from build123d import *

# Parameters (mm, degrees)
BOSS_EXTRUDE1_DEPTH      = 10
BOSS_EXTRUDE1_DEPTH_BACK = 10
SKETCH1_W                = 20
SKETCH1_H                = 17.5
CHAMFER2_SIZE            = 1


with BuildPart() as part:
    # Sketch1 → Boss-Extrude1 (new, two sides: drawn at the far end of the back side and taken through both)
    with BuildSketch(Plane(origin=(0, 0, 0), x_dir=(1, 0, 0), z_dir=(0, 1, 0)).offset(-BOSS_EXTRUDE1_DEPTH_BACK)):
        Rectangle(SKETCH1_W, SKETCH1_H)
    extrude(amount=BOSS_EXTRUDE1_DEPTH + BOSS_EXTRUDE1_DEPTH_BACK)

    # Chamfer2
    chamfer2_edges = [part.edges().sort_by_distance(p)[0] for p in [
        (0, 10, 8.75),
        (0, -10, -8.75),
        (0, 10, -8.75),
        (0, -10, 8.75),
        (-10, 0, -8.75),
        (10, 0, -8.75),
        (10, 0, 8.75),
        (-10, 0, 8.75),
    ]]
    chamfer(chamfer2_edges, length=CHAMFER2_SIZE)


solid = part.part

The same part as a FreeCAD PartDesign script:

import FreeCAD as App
import Part
import Sketcher


def edges_at(feature, points):
    """Names of the edges that pass closest to the given points."""
    edges = feature.Shape.Edges
    near = lambda p: min(range(len(edges)), key=lambda i: edges[i].distToShape(Part.Vertex(*p))[0])
    return sorted({f"Edge{near(p) + 1}" for p in points})

doc = App.newDocument("Part")
body = doc.addObject("PartDesign::Body", "Body")

# Sketch on XZ plane
sketch1 = body.newObject("Sketcher::SketchObject", "Sketch")
sketch1.AttachmentSupport = (doc.getObject("XZ_Plane"), [""])
sketch1.MapMode = "FlatFace"
sketch1.addGeometry(Part.LineSegment(App.Vector(-10, -8.75, 0), App.Vector(-10, 8.75, 0)), False)
sketch1.addGeometry(Part.LineSegment(App.Vector(-10, 8.75, 0), App.Vector(10, 8.75, 0)), False)
sketch1.addGeometry(Part.LineSegment(App.Vector(10, 8.75, 0), App.Vector(10, -8.75, 0)), False)
sketch1.addGeometry(Part.LineSegment(App.Vector(10, -8.75, 0), App.Vector(-10, -8.75, 0)), False)
sketch1.addConstraint(Sketcher.Constraint("Coincident", 0, 2, 1, 1))
sketch1.addConstraint(Sketcher.Constraint("Coincident", 1, 2, 2, 1))
sketch1.addConstraint(Sketcher.Constraint("Coincident", 2, 2, 3, 1))
sketch1.addConstraint(Sketcher.Constraint("Coincident", 3, 2, 0, 1))
sketch1.addConstraint(Sketcher.Constraint("Vertical", 0))
sketch1.addConstraint(Sketcher.Constraint("Horizontal", 1))
sketch1.addConstraint(Sketcher.Constraint("Vertical", 2))
sketch1.addConstraint(Sketcher.Constraint("Horizontal", 3))
sketch1.addConstraint(Sketcher.Constraint("Symmetric", 0, 2, 2, 2, -1, 1))
sketch1.addConstraint(Sketcher.Constraint("DistanceX", 1, 1, 1, 2, 20.0))
sketch1.addConstraint(Sketcher.Constraint("DistanceY", 0, 1, 0, 2, 17.5))
pad1 = body.newObject("PartDesign::Pad", "Pad")
pad1.Profile = sketch1
pad1.Type = "TwoLengths"
pad1.Length = 10
pad1.Length2 = 10
pad1.Reversed = True
doc.recompute()

chamfer = body.newObject("PartDesign::Chamfer", "Chamfer")
chamfer.Base = (pad1, edges_at(pad1, [
    (0, 10, 8.75),
    (0, -10, -8.75),
    (0, 10, -8.75),
    (0, -10, 8.75),
    (-10, 0, -8.75),
    (10, 0, -8.75),
    (10, 0, 8.75),
    (-10, 0, 8.75),
]))
chamfer.Size = 1

doc.recompute()
